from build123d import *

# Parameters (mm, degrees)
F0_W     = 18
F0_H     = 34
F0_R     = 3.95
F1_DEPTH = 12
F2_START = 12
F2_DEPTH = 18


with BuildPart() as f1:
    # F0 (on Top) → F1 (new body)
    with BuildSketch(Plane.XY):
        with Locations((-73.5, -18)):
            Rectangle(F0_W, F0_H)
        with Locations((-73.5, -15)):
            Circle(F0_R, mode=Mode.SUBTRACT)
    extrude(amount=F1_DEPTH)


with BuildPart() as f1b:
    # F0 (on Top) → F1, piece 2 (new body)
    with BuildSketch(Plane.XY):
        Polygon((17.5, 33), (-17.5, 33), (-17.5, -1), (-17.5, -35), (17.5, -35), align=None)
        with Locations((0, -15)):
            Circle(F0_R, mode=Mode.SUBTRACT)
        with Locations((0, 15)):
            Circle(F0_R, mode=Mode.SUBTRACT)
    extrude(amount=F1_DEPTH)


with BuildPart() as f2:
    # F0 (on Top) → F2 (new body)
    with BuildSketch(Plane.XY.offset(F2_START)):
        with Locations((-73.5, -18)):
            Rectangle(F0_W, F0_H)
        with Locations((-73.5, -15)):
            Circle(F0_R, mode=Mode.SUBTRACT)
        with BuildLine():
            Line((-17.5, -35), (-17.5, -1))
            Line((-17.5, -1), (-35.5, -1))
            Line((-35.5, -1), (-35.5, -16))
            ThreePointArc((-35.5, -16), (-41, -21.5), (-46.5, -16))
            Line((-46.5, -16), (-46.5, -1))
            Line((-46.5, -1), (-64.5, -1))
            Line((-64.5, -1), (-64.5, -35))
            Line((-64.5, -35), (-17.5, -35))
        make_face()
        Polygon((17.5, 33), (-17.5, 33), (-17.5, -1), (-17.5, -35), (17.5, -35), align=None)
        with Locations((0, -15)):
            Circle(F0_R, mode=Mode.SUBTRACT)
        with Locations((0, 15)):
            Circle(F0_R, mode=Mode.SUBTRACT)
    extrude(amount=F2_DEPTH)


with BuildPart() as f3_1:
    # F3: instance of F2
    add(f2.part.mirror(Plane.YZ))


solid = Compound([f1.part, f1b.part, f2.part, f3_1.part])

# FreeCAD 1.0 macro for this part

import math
import FreeCAD as App
import Part
import Sketcher

V = App.Vector


def add_polygon(sketch, points):
    """Adds a closed chain of lines whose ends are joined by coincident constraints."""
    first, n = sketch.GeometryCount, len(points)
    for a, b in zip(points, points[1:] + points[:1]):
        sketch.addGeometry(Part.LineSegment(App.Vector(*a, 0), App.Vector(*b, 0)), False)
    for i in range(n):
        sketch.addConstraint(Sketcher.Constraint("Coincident", first + i, 2, first + (i + 1) % n, 1))

doc = App.newDocument("Part")
body = doc.addObject("PartDesign::Body", "Body")

# Sketch on XY plane
sketch1 = body.newObject("Sketcher::SketchObject", "Sketch")
sketch1.AttachmentSupport = (doc.getObject("XY_Plane"), [""])
sketch1.MapMode = "FlatFace"
add_polygon(sketch1, [(-82.5, -1), (-82.5, -35), (-64.5, -35), (-64.5, -1)])  # lines 0-3
sketch1.addGeometry(Part.Circle(V(-73.5, -15, 0), V(0, 0, 1), 4), False)  # 4
sketch1.addConstraint(Sketcher.Constraint("Vertical", 0))
sketch1.addConstraint(Sketcher.Constraint("Horizontal", 1))
sketch1.addConstraint(Sketcher.Constraint("Vertical", 2))
sketch1.addConstraint(Sketcher.Constraint("Horizontal", 3))
sketch1.addConstraint(Sketcher.Constraint("Diameter", 4, 7.9))
sketch1.addConstraint(Sketcher.Constraint("DistanceX", 1, 1, 1, 2, 18.0))
sketch1.addConstraint(Sketcher.Constraint("DistanceY", 0, 2, 0, 1, 34.0))
sketch1.addConstraint(Sketcher.Constraint("DistanceY", 4, 3, -1, 1, 15.0))
sketch1.addConstraint(Sketcher.Constraint("DistanceY", 0, 2, -1, 1, 35.0))
sketch1.addConstraint(Sketcher.Constraint("DistanceX", 0, 2, 4, 3, 9.0))
sketch1.addConstraint(Sketcher.Constraint("DistanceX", 4, 3, -1, 1, 73.5))
pad1 = body.newObject("PartDesign::Pad", "Pad")
pad1.Profile = sketch1
pad1.Length = 12
body2 = doc.addObject("PartDesign::Body", "Body001")

# Sketch on XY plane
sketch2 = body2.newObject("Sketcher::SketchObject", "Sketch001")
sketch2.AttachmentSupport = (doc.getObject("XY_Plane001"), [""])
sketch2.MapMode = "FlatFace"
add_polygon(sketch2, [(17.5, 33), (-17.5, 33), (-17.5, -35), (17.5, -35)])  # lines 0-3
sketch2.addGeometry(Part.Circle(V(0, -15, 0), V(0, 0, 1), 4), False)  # 4
sketch2.addGeometry(Part.Circle(V(0, 15, 0), V(0, 0, 1), 4), False)  # 5
sketch2.addConstraint(Sketcher.Constraint("Horizontal", 0))
sketch2.addConstraint(Sketcher.Constraint("Vertical", 1))
sketch2.addConstraint(Sketcher.Constraint("Horizontal", 2))
sketch2.addConstraint(Sketcher.Constraint("Vertical", 3))
sketch2.addConstraint(Sketcher.Constraint("Equal", 4, 5))
sketch2.addConstraint(Sketcher.Constraint("Symmetric", 4, 3, 5, 3, -1, 1))
sketch2.addConstraint(Sketcher.Constraint("PointOnObject", 4, 3, -2))
sketch2.addConstraint(Sketcher.Constraint("Diameter", 4, 7.9))
sketch2.addConstraint(Sketcher.Constraint("DistanceX", 0, 2, 0, 1, 35.0))
sketch2.addConstraint(Sketcher.Constraint("DistanceY", 1, 2, 1, 1, 68.0))
sketch2.addConstraint(Sketcher.Constraint("DistanceY", 4, 3, -1, 1, 15.0))
sketch2.addConstraint(Sketcher.Constraint("DistanceY", -1, 1, 0, 2, 33.0))
sketch2.addConstraint(Sketcher.Constraint("DistanceX", 0, 2, -1, 1, 17.5))
pad2 = body2.newObject("PartDesign::Pad", "Pad001")
pad2.Profile = sketch2
pad2.Length = 12
body3 = doc.addObject("PartDesign::Body", "Body002")

# Sketch on XY plane
sketch3 = body3.newObject("Sketcher::SketchObject", "Sketch002")
sketch3.AttachmentSupport = (doc.getObject("XY_Plane002"), [""])
sketch3.MapMode = "FlatFace"
sketch3.AttachmentOffset = App.Placement(V(0, 0, 12), App.Rotation())
sketch3.addGeometry(Part.LineSegment(V(-82.5, -1, 0), V(-82.5, -35, 0)), False)
sketch3.addGeometry(Part.LineSegment(V(-82.5, -35, 0), V(17.5, -35, 0)), False)
sketch3.addGeometry(Part.LineSegment(V(17.5, -35, 0), V(17.5, 33, 0)), False)
sketch3.addGeometry(Part.LineSegment(V(17.5, 33, 0), V(-17.5, 33, 0)), False)
sketch3.addGeometry(Part.LineSegment(V(-17.5, 33, 0), V(-17.5, -1, 0)), False)
sketch3.addGeometry(Part.LineSegment(V(-17.5, -1, 0), V(-35.5, -1, 0)), False)
sketch3.addGeometry(Part.LineSegment(V(-35.5, -1, 0), V(-35.5, -16, 0)), False)
sketch3.addGeometry(Part.ArcOfCircle(Part.Circle(V(-41, -16, 0), V(0, 0, 1), 5.5), math.radians(180), math.radians(360)), False)
sketch3.addGeometry(Part.LineSegment(V(-46.5, -16, 0), V(-46.5, -1, 0)), False)
sketch3.addGeometry(Part.LineSegment(V(-46.5, -1, 0), V(-82.5, -1, 0)), False)
sketch3.addGeometry(Part.Circle(V(-73.5, -15, 0), V(0, 0, 1), 4), False)
sketch3.addGeometry(Part.Circle(V(0, -15, 0), V(0, 0, 1), 4), False)
sketch3.addGeometry(Part.Circle(V(0, 15, 0), V(0, 0, 1), 4), False)
sketch3.addConstraint(Sketcher.Constraint("Coincident", 0, 2, 1, 1))
sketch3.addConstraint(Sketcher.Constraint("Coincident", 1, 2, 2, 1))
sketch3.addConstraint(Sketcher.Constraint("Coincident", 2, 2, 3, 1))
sketch3.addConstraint(Sketcher.Constraint("Coincident", 3, 2, 4, 1))
sketch3.addConstraint(Sketcher.Constraint("Coincident", 4, 2, 5, 1))
sketch3.addConstraint(Sketcher.Constraint("Coincident", 5, 2, 6, 1))
sketch3.addConstraint(Sketcher.Constraint("Tangent", 6, 2, 7, 2))
sketch3.addConstraint(Sketcher.Constraint("Tangent", 7, 1, 8, 1))
sketch3.addConstraint(Sketcher.Constraint("Coincident", 8, 2, 9, 1))
sketch3.addConstraint(Sketcher.Constraint("Coincident", 9, 2, 0, 1))
sketch3.addConstraint(Sketcher.Constraint("Vertical", 0))
sketch3.addConstraint(Sketcher.Constraint("Horizontal", 1))
sketch3.addConstraint(Sketcher.Constraint("Vertical", 2))
sketch3.addConstraint(Sketcher.Constraint("Horizontal", 3))
sketch3.addConstraint(Sketcher.Constraint("Vertical", 4))
sketch3.addConstraint(Sketcher.Constraint("Horizontal", 5))
sketch3.addConstraint(Sketcher.Constraint("Vertical", 6))
sketch3.addConstraint(Sketcher.Constraint("Vertical", 8))
sketch3.addConstraint(Sketcher.Constraint("Horizontal", 9))
sketch3.addConstraint(Sketcher.Constraint("Equal", 10, 11))
sketch3.addConstraint(Sketcher.Constraint("Equal", 11, 12))
sketch3.addConstraint(Sketcher.Constraint("Symmetric", 11, 3, 12, 3, -1, 1))
sketch3.addConstraint(Sketcher.Constraint("PointOnObject", 11, 3, -2))
sketch3.addConstraint(Sketcher.Constraint("Horizontal", 10, 3, 11, 3))
sketch3.addConstraint(Sketcher.Constraint("Horizontal", 5, 2, 8, 2))
sketch3.addConstraint(Sketcher.Constraint("Equal", 0, 4))
sketch3.addConstraint(Sketcher.Constraint("Diameter", 10, 7.9))
sketch3.addConstraint(Sketcher.Constraint("Radius", 7, 5.5))
sketch3.addConstraint(Sketcher.Constraint("DistanceX", 1, 1, 1, 2, 100.0))
sketch3.addConstraint(Sketcher.Constraint("DistanceX", 3, 2, 3, 1, 35.0))
sketch3.addConstraint(Sketcher.Constraint("DistanceX", 5, 2, 5, 1, 18.0))
sketch3.addConstraint(Sketcher.Constraint("DistanceY", 0, 2, 0, 1, 34.0))
sketch3.addConstraint(Sketcher.Constraint("DistanceY", 6, 2, 6, 1, 15.0))
sketch3.addConstraint(Sketcher.Constraint("DistanceX", 7, 3, -1, 1, 41.0))
sketch3.addConstraint(Sketcher.Constraint("DistanceY", 7, 3, -1, 1, 16.0))
sketch3.addConstraint(Sketcher.Constraint("DistanceY", 10, 3, -1, 1, 15.0))
sketch3.addConstraint(Sketcher.Constraint("DistanceX", 0, 2, 10, 3, 9.0))
pad3 = body3.newObject("PartDesign::Pad", "Pad002")
pad3.Profile = sketch3
pad3.Length = 18
body4 = doc.addObject("PartDesign::Body", "Body003")
doc.recompute()

mirroring = doc.addObject("Part::Mirroring", "Mirroring")
mirroring.Source = body3
mirroring.Base = V(0, 0, 0)
mirroring.Normal = V(1, 0, 0)
body4.BaseFeature = mirroring
doc.recompute()
mirroring.Visibility = False

doc.recompute()
